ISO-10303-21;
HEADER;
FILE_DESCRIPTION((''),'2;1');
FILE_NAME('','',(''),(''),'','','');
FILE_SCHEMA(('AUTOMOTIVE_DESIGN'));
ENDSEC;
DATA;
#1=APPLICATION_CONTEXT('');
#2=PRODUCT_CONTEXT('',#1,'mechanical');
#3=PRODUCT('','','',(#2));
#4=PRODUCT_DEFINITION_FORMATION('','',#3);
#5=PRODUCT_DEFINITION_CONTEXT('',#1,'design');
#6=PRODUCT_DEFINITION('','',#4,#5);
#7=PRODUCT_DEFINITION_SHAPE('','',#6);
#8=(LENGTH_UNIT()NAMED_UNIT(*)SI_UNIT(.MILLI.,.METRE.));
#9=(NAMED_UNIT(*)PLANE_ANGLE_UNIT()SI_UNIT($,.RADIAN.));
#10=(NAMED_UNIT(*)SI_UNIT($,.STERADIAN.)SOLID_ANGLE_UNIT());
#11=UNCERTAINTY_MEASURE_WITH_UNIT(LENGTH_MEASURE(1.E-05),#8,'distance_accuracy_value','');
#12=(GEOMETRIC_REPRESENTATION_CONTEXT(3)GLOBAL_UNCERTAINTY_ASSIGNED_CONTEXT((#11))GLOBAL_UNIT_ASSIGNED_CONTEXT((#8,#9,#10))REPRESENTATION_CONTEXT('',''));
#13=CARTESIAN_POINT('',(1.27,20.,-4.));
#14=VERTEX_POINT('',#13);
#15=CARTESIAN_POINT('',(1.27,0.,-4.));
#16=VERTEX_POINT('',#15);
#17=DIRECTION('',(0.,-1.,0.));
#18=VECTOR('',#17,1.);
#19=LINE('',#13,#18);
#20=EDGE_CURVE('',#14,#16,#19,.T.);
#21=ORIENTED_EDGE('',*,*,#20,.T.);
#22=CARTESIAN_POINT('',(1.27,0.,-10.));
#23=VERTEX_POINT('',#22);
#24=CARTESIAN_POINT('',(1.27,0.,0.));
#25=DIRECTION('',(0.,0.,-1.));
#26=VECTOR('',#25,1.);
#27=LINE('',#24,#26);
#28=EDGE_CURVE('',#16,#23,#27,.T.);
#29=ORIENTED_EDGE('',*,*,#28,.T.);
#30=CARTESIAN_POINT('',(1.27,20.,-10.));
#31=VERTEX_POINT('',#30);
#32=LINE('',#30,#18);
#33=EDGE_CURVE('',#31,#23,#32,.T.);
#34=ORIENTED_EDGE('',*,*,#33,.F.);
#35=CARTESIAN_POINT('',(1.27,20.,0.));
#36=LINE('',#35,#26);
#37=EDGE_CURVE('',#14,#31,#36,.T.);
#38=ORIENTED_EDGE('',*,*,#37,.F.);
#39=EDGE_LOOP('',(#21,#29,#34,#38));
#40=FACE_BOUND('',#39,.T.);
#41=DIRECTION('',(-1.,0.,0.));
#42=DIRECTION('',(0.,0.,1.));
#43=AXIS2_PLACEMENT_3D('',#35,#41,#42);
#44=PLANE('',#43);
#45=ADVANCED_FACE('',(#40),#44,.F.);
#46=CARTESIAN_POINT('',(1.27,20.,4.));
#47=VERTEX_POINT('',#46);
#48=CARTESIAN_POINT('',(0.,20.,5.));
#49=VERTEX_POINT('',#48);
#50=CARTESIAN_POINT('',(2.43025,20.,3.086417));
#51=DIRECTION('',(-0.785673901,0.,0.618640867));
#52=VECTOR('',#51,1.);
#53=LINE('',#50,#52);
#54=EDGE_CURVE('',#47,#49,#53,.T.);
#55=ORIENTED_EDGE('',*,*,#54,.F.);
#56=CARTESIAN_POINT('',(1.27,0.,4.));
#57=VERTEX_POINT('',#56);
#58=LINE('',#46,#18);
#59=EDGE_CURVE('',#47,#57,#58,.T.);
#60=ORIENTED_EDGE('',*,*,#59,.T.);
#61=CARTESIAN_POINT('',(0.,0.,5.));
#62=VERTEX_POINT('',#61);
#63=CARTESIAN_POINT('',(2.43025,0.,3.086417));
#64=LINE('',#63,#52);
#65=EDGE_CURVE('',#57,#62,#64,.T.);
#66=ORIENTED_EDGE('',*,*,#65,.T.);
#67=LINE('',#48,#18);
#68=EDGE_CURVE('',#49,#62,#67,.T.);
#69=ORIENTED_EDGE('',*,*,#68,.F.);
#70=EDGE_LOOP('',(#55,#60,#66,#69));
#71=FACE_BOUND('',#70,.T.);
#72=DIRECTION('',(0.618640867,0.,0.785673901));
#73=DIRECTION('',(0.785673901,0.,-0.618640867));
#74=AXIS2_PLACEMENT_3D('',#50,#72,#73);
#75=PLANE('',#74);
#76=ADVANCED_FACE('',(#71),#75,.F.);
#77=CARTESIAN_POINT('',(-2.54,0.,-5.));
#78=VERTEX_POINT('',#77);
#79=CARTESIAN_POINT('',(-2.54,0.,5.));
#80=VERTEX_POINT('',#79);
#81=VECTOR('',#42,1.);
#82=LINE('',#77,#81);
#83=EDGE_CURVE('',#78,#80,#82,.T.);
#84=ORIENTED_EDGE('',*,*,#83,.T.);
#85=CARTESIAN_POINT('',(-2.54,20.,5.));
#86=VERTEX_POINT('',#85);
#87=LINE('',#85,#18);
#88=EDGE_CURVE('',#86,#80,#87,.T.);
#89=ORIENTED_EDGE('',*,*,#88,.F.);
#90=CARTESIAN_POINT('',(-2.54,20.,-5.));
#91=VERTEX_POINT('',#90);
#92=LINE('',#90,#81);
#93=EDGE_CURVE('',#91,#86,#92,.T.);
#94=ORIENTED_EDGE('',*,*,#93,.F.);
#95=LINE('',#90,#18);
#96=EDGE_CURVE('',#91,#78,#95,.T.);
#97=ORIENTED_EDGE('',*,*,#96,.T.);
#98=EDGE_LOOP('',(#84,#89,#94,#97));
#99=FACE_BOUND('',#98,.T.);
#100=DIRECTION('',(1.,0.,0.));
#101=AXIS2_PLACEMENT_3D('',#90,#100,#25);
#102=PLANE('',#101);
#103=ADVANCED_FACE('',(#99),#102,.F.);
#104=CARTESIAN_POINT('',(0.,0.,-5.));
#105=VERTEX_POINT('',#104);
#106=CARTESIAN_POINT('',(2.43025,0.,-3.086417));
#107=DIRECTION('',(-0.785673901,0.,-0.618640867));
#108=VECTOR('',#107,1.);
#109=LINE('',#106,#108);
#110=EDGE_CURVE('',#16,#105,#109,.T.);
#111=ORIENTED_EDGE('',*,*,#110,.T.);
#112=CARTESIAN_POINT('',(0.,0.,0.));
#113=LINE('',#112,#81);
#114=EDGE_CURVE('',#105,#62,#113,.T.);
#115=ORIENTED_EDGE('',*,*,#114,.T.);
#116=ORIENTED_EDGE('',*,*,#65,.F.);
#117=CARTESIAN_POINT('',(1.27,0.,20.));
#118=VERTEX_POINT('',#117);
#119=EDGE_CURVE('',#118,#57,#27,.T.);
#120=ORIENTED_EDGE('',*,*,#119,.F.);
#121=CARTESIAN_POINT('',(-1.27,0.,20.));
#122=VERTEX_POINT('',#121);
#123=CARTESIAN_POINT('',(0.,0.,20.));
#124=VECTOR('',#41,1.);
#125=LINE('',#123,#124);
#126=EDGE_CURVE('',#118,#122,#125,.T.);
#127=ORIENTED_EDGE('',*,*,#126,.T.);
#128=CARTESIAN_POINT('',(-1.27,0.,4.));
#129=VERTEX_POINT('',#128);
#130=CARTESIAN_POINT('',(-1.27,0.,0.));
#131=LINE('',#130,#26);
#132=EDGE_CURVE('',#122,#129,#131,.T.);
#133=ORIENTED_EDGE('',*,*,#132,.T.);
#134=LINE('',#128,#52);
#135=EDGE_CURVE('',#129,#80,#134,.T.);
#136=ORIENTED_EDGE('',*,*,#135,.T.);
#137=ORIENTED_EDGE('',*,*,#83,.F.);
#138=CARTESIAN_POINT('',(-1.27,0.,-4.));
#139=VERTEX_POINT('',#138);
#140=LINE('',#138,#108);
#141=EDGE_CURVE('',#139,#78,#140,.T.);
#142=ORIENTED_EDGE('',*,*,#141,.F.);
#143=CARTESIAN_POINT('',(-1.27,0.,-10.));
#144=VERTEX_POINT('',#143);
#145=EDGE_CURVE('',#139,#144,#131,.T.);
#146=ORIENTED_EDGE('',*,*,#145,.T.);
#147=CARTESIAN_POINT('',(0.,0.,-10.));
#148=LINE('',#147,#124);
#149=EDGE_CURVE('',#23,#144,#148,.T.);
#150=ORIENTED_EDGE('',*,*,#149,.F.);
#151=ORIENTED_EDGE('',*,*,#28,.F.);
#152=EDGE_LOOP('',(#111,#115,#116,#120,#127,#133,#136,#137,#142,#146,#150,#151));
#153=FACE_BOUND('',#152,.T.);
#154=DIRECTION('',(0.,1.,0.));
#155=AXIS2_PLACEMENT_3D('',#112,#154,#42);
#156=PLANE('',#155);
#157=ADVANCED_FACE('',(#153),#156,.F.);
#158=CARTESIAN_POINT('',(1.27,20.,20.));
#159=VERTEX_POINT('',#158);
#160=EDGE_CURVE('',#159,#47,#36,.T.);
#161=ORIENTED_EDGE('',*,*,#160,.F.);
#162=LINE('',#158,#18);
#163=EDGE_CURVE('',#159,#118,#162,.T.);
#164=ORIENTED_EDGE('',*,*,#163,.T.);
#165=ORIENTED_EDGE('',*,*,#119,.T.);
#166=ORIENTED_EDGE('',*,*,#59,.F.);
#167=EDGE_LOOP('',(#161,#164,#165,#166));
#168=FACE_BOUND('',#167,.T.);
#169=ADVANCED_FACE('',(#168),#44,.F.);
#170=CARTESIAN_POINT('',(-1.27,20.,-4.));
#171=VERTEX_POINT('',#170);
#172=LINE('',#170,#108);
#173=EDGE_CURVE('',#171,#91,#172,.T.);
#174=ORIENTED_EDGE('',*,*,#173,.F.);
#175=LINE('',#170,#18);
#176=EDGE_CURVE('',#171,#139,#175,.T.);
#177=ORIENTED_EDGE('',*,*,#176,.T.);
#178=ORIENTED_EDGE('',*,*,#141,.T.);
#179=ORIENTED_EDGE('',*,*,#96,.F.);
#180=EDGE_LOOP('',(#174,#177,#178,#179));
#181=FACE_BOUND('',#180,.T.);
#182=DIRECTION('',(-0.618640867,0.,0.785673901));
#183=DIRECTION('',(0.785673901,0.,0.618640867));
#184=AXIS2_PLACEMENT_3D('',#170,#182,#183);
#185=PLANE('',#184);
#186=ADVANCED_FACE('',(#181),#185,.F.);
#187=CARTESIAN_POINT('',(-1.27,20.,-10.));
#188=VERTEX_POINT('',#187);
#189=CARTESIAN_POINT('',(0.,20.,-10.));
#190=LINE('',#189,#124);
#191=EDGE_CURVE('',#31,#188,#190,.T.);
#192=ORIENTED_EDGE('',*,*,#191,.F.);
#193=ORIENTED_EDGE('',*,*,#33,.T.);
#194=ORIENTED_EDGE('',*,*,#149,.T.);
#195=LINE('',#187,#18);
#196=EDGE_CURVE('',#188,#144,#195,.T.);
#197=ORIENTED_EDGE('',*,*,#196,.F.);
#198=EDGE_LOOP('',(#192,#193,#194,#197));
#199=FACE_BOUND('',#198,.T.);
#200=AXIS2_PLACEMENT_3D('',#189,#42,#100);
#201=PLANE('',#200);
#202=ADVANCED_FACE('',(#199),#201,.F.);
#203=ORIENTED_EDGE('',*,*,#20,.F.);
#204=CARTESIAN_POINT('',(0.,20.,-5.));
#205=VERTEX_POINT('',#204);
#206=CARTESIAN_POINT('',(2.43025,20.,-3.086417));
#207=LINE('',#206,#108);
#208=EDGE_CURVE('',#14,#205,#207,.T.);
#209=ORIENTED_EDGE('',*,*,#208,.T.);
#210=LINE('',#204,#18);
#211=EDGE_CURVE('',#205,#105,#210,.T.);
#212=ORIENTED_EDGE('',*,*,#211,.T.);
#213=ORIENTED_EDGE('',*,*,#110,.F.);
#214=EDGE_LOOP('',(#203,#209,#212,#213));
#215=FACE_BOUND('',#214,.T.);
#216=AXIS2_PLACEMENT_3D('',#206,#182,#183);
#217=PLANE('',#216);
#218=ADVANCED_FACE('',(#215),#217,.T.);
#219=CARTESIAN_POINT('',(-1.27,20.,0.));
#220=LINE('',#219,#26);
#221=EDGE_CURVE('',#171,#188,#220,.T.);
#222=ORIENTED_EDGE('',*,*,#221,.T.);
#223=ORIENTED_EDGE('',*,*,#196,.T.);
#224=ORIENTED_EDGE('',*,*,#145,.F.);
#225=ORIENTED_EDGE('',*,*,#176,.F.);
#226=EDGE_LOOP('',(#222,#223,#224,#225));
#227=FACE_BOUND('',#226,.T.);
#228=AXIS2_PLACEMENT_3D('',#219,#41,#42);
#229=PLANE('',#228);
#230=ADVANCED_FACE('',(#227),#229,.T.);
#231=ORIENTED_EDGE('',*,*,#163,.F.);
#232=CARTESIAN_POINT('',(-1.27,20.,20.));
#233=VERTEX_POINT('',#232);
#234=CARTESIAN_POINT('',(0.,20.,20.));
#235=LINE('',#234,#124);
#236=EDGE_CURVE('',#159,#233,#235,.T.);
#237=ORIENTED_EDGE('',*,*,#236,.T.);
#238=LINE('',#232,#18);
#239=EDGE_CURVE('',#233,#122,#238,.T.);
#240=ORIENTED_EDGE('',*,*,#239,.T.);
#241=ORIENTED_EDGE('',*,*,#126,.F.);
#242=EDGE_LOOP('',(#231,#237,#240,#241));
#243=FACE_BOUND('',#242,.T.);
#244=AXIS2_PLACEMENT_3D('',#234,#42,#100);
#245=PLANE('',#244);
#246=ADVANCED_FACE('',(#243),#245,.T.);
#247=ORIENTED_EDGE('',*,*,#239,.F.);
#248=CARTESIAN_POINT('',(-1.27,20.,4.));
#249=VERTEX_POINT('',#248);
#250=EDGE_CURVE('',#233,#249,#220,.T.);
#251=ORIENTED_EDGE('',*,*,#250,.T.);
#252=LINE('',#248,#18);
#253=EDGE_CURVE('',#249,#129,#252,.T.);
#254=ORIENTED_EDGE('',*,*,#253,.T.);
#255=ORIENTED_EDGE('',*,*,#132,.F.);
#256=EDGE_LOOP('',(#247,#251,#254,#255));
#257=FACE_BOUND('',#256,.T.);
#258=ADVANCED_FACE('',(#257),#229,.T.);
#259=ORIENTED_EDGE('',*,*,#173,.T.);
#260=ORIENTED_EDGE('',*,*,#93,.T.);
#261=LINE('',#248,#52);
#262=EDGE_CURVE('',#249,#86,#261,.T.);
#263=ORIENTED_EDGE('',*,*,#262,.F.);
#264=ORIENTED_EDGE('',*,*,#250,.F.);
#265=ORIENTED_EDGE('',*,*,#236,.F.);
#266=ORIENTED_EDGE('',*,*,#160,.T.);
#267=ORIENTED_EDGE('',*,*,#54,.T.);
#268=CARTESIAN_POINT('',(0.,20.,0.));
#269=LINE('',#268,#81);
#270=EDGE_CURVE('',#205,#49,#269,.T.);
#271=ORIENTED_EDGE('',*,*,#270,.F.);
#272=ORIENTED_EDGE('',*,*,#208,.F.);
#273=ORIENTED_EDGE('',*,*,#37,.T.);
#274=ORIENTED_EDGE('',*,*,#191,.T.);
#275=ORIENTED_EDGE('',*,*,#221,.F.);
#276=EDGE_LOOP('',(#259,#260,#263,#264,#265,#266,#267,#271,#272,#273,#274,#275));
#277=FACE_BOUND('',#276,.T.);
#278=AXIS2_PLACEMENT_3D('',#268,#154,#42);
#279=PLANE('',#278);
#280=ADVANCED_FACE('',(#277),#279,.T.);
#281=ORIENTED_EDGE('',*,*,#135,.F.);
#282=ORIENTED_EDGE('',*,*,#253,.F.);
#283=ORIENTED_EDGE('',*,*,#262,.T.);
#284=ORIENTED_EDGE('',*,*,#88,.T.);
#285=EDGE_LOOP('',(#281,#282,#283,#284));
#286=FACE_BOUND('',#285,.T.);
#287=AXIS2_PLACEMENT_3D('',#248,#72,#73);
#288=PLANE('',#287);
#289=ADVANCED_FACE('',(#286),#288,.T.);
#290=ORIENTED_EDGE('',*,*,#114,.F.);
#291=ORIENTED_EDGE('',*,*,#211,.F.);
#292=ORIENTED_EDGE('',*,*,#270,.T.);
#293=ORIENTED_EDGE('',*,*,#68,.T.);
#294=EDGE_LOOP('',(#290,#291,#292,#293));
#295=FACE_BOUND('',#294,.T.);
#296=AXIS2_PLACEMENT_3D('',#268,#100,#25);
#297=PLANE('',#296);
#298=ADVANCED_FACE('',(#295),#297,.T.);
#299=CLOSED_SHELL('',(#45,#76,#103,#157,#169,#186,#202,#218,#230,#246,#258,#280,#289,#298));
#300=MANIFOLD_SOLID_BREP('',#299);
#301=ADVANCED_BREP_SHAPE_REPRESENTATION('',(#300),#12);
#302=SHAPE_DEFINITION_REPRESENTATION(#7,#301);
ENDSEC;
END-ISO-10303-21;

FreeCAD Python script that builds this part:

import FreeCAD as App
import Part
import Sketcher

V = App.Vector
Q = App.Units.Quantity

doc = App.newDocument("Part")
body = doc.addObject("PartDesign::Body", "Body")

sketch1 = doc.addObject("Sketcher::SketchObject", "Sketch")
body.addObject(sketch1)
sketch1.AttachmentSupport = (doc.XZ_Plane, [""])
sketch1.MapMode = "FlatFace"
sketch1.addGeometry([
    Part.LineSegment(V(0, -5, 0), V(1.3, -4, 0)),
    Part.LineSegment(V(1.3, -4, 0), V(1.3, -10, 0)),
    Part.LineSegment(V(1.3, -10, 0), V(-1.3, -10, 0)),
    Part.LineSegment(V(-1.3, -10, 0), V(-1.3, -4, 0)),
    Part.LineSegment(V(-1.3, -4, 0), V(-2.5, -5, 0)),
    Part.LineSegment(V(-2.5, -5, 0), V(-2.5, 5, 0)),
    Part.LineSegment(V(-2.5, 5, 0), V(-1.3, 4, 0)),
    Part.LineSegment(V(-1.3, 4, 0), V(-1.3, 20, 0)),
    Part.LineSegment(V(-1.3, 20, 0), V(1.3, 20, 0)),
    Part.LineSegment(V(1.3, 20, 0), V(1.3, 4, 0)),
    Part.LineSegment(V(1.3, 4, 0), V(0, 5, 0)),
    Part.LineSegment(V(0, 5, 0), V(0, -5, 0)),
], False)
sketch1.addConstraint([
    Sketcher.Constraint("Coincident", 0, 2, 1, 1),
    Sketcher.Constraint("Coincident", 1, 2, 2, 1),
    Sketcher.Constraint("Coincident", 2, 2, 3, 1),
    Sketcher.Constraint("Coincident", 3, 2, 4, 1),
    Sketcher.Constraint("Coincident", 4, 2, 5, 1),
    Sketcher.Constraint("Coincident", 5, 2, 6, 1),
    Sketcher.Constraint("Coincident", 6, 2, 7, 1),
    Sketcher.Constraint("Coincident", 7, 2, 8, 1),
    Sketcher.Constraint("Coincident", 8, 2, 9, 1),
    Sketcher.Constraint("Coincident", 9, 2, 10, 1),
    Sketcher.Constraint("Coincident", 10, 2, 11, 1),
    Sketcher.Constraint("Coincident", 11, 2, 0, 1),
    Sketcher.Constraint("Vertical", 1),
    Sketcher.Constraint("Horizontal", 2),
    Sketcher.Constraint("Vertical", 3),
    Sketcher.Constraint("Vertical", 5),
    Sketcher.Constraint("Vertical", 7),
    Sketcher.Constraint("Horizontal", 8),
    Sketcher.Constraint("Vertical", 9),
    Sketcher.Constraint("Vertical", 11),
    Sketcher.Constraint("Symmetric", 0, 2, 6, 2, -1, 1),
    Sketcher.Constraint("Symmetric", 3, 2, 9, 2, -1, 1),
    Sketcher.Constraint("Symmetric", 10, 2, 11, 2, -1, 1),
    Sketcher.Constraint("Symmetric", 0, 2, 3, 2, -2),
    Sketcher.Constraint("Parallel", 0, 4),
    Sketcher.Constraint("Parallel", 6, 10),
    Sketcher.Constraint("Horizontal", 5, 2, 10, 2),
    Sketcher.Constraint("DistanceY", 1, 2, 1, 1, Q("6 mm")),
    Sketcher.Constraint("DistanceY", 5, 1, 5, 2, Q("10 mm")),
    Sketcher.Constraint("DistanceY", 7, 1, 7, 2, Q("16 mm")),
    Sketcher.Constraint("DistanceY", 0, 2, -1, 1, Q("4 mm")),
    Sketcher.Constraint("DistanceX", 2, 2, 2, 1, Q("2.54 mm")),
])
pad1 = doc.addObject("PartDesign::Pad", "Pad")
body.addObject(pad1)
pad1.Profile = sketch1
pad1.Length = 20
pad1.Reversed = True

doc.recompute()
